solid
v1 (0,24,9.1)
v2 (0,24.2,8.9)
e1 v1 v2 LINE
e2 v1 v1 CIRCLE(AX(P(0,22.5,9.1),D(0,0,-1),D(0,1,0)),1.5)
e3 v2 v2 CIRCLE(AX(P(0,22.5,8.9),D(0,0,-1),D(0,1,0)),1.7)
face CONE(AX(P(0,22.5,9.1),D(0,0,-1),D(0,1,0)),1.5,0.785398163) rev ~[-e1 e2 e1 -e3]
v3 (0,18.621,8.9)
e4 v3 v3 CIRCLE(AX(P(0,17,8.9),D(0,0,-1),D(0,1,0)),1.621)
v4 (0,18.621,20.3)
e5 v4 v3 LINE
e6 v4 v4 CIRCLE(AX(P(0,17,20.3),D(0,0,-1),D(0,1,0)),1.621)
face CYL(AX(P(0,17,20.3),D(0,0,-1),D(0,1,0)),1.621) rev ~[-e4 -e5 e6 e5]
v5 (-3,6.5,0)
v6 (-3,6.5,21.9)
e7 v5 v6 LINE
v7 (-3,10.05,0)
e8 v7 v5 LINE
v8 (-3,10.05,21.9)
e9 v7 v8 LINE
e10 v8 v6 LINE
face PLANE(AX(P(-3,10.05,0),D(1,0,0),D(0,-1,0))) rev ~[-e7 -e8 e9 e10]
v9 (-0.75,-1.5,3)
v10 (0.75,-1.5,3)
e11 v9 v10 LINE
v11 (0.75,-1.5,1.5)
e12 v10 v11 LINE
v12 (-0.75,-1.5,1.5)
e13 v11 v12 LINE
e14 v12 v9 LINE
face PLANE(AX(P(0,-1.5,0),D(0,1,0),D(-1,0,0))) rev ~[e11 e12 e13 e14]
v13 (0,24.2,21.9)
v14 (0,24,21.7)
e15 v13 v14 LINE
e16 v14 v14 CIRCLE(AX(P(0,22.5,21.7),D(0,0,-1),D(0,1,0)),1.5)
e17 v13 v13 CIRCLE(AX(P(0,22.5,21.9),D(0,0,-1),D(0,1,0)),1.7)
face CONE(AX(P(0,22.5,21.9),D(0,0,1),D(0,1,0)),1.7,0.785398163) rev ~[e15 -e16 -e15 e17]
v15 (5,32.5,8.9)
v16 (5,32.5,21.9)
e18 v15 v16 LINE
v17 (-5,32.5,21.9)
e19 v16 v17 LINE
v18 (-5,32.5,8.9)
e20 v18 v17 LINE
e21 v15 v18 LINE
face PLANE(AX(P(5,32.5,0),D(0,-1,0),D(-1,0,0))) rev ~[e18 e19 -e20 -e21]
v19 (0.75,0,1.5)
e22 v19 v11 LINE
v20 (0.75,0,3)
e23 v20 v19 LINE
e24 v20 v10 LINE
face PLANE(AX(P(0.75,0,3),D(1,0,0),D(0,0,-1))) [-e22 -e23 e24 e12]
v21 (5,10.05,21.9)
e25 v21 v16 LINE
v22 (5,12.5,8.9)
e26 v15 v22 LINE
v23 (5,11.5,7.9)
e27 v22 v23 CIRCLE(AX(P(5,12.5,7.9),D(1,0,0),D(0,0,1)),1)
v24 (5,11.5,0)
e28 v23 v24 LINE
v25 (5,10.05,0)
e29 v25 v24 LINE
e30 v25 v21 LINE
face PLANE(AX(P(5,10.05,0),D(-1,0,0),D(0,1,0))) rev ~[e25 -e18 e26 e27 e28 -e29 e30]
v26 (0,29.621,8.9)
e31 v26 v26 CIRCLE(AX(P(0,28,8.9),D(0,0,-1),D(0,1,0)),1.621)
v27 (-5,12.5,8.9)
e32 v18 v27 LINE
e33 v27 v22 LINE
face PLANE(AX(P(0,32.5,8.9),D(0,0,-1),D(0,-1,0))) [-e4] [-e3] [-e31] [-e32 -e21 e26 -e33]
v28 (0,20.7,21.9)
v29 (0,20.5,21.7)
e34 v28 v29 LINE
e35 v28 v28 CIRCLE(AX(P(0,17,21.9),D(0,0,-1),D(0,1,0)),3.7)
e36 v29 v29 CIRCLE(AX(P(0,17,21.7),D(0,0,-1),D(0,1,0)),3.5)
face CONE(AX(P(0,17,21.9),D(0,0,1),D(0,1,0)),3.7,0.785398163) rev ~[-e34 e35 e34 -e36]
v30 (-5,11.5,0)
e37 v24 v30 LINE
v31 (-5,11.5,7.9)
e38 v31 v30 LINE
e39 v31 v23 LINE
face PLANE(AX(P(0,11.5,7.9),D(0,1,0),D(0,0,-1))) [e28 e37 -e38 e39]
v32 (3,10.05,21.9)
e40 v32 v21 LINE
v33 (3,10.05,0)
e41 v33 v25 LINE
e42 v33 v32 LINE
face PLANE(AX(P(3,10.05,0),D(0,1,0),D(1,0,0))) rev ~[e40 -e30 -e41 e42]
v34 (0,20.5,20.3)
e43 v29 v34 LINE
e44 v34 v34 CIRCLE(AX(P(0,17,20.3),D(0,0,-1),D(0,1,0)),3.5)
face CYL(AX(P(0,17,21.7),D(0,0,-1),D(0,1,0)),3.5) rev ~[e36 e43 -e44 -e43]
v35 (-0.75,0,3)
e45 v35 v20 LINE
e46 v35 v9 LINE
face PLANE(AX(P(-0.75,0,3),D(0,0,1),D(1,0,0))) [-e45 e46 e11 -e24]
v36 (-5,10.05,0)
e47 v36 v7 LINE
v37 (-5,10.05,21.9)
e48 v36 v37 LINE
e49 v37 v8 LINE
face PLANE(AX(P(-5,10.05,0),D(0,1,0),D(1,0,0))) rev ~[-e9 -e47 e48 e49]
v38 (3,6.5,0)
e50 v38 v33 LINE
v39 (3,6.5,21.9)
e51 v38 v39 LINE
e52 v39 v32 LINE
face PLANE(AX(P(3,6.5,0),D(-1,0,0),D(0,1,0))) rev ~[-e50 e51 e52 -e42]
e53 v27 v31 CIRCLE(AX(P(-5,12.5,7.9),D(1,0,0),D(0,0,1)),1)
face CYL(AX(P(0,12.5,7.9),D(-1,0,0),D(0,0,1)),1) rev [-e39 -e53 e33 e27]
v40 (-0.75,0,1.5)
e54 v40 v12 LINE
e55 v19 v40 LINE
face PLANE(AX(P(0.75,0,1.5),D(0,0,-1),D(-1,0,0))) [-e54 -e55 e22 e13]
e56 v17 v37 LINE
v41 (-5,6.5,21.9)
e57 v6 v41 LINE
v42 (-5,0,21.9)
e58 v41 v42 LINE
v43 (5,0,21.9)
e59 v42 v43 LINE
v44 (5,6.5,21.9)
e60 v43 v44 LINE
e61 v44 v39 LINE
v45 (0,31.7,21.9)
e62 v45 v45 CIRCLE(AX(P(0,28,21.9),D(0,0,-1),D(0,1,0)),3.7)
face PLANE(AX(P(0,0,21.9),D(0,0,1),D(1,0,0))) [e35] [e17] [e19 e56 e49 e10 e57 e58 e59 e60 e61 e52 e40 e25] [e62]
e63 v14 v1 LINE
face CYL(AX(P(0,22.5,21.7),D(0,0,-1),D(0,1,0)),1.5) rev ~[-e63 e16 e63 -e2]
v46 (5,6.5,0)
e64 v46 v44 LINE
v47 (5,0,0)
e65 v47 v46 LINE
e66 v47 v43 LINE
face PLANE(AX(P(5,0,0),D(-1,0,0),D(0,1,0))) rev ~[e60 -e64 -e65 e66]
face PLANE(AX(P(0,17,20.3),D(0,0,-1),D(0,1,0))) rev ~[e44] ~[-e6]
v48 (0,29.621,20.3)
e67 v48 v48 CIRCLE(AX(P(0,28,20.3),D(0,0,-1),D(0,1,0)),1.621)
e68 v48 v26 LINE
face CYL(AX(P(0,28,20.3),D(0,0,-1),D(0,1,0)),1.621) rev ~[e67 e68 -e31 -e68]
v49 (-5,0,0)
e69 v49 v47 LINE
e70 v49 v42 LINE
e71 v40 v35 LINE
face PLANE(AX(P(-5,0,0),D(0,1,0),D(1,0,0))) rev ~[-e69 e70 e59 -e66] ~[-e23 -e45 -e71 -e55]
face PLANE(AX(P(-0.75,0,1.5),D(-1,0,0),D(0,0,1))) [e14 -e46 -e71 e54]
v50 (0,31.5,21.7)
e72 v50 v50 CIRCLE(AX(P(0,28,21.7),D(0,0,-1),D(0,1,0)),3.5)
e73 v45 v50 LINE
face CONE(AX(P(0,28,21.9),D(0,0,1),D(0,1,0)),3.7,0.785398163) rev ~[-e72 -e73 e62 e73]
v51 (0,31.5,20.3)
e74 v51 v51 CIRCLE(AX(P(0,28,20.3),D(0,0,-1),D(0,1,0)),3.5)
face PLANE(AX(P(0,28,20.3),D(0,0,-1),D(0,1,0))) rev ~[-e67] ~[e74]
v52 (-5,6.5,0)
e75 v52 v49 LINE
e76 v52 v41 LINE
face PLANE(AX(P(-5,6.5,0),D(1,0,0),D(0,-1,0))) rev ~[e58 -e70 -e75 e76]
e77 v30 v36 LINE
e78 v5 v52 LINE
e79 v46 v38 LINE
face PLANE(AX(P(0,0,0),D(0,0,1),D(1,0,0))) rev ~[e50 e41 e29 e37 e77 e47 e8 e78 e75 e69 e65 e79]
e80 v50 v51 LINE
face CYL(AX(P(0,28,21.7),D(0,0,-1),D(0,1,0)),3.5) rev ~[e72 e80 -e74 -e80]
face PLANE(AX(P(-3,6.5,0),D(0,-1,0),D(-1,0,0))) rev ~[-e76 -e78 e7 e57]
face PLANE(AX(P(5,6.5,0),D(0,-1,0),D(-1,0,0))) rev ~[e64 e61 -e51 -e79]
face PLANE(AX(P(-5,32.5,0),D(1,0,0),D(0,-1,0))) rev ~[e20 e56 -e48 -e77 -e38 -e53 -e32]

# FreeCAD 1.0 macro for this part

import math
import FreeCAD as App
import Part
import Sketcher
Q = App.Units.Quantity


def add_polygon(sketch, points):
    """Adds a closed chain of lines whose ends are joined by coincident constraints."""
    first, n = sketch.GeometryCount, len(points)
    for a, b in zip(points, points[1:] + points[:1]):
        sketch.addGeometry(Part.LineSegment(App.Vector(*a, 0), App.Vector(*b, 0)), False)
    for i in range(n):
        sketch.addConstraint(Sketcher.Constraint("Coincident", first + i, 2, first + (i + 1) % n, 1))

doc = App.newDocument("Part")
params = doc.addObject("Spreadsheet::Sheet", "Params")
for row, (alias, value) in enumerate([
    ("sketch1_width", "2 mm"),
    ("sketch1_width2", "10 mm"),
    ("sketch1_height", "6.5 mm"),
    ("sketch1_height2", "22.45 mm"),
    ("pad1_length", "21.9 mm"),
    ("sketch2_radius", "1 mm"),
    ("sketch2_width", "20 mm"),
    ("sketch2_height", "7.9 mm"),
    ("pocket1_length", "10 mm"),
    ("sketch3_height", "13 mm"),
    ("sketch3_width", "1.7 mm"),
    ("sketch3_height2", "12.6 mm"),
    ("groove_angle", "360 deg"),
    ("sketch4_height", "13 mm"),
    ("sketch4_width", "3.7 mm"),
    ("sketch4_height2", "11.4 mm"),
    ("sketch4_height3", "1.4 mm"),
    ("groove2_angle", "360 deg"),
    ("sketch5_height", "13 mm"),
    ("sketch5_width", "3.7 mm"),
    ("sketch5_height2", "11.4 mm"),
    ("sketch5_height3", "1.4 mm"),
    ("groove3_angle", "360 deg"),
    ("sketch6_width", "1.5 mm"),
    ("pad2_length", "1.5 mm"),
], start=1):
    params.set(f"A{row}", alias)
    params.set(f"B{row}", "=" + value)
    params.setAlias(f"B{row}", alias)

body = doc.addObject("PartDesign::Body", "Body")

# Sketch on XY plane
sketch1 = body.newObject("Sketcher::SketchObject", "Sketch")
sketch1.AttachmentSupport = (doc.getObject("XY_Plane"), [""])
sketch1.MapMode = "FlatFace"
add_polygon(sketch1, [(-5, 32.5), (-5, 10.05), (-3, 10.05), (-3, 6.5), (-5, 6.5), (-5, 0), (5, 0), (5, 6.5), (3, 6.5), (3, 10.05), (5, 10.05), (5, 32.5)])  # lines 0-11
sketch1.addConstraint([
    Sketcher.Constraint("Vertical", 0),
    Sketcher.Constraint("Horizontal", 1),
    Sketcher.Constraint("Vertical", 2),
    Sketcher.Constraint("Horizontal", 3),
    Sketcher.Constraint("Vertical", 4),
    Sketcher.Constraint("Horizontal", 5),
    Sketcher.Constraint("Vertical", 6),
    Sketcher.Constraint("Horizontal", 7),
    Sketcher.Constraint("Vertical", 8),
    Sketcher.Constraint("Horizontal", 9),
    Sketcher.Constraint("Vertical", 10),
    Sketcher.Constraint("Horizontal", 11),
    Sketcher.Constraint("Symmetric", 4, 2, 5, 2, -1, 1),
    Sketcher.Constraint("Symmetric", 2, 2, 7, 2, -2),
    Sketcher.Constraint("Symmetric", 0, 2, 9, 2, -2),
    Sketcher.Constraint("Vertical", 0, 2, 3, 2),
    Sketcher.Constraint("DistanceX", 1, 1, 1, 2, 2.0),
    Sketcher.Constraint("DistanceX", 5, 1, 5, 2, 10.0),
    Sketcher.Constraint("DistanceY", 4, 2, 4, 1, 6.5),
    Sketcher.Constraint("DistanceY", 6, 2, 10, 2, 26.0),
    Sketcher.Constraint("DistanceY", 0, 2, 0, 1, 22.45),
])
sketch1.setExpression("Constraints[28]", "Params.sketch1_width")
sketch1.setExpression("Constraints[29]", "Params.sketch1_width2")
sketch1.setExpression("Constraints[30]", "Params.sketch1_height")
sketch1.setExpression("Constraints[32]", "Params.sketch1_height2")
pad1 = body.newObject("PartDesign::Pad", "Pad")
pad1.Profile = sketch1
pad1.setExpression("Length", "Params.pad1_length")

# Sketch on YZ plane
sketch2 = body.newObject("Sketcher::SketchObject", "Sketch001")
sketch2.AttachmentSupport = (doc.getObject("YZ_Plane"), [""])
sketch2.MapMode = "FlatFace"
sketch2.addGeometry([
    Part.LineSegment(App.Vector(32.5, 8.9, 0), App.Vector(12.5, 8.9, 0)),  # 0
    Part.ArcOfCircle(Part.Circle(App.Vector(12.5, 7.9, 0), App.Vector(0, 0, 1), 1), math.radians(90), math.radians(180)),  # 1
    Part.LineSegment(App.Vector(11.5, 7.9, 0), App.Vector(11.5, 0, 0)),  # 2
    Part.LineSegment(App.Vector(11.5, 0, 0), App.Vector(32.5, 0, 0)),  # 3
    Part.LineSegment(App.Vector(32.5, 0, 0), App.Vector(32.5, 8.9, 0)),  # 4
], False)
sketch2.addConstraint([
    Sketcher.Constraint("Tangent", 0, 2, 1, 1),
    Sketcher.Constraint("Tangent", 1, 2, 2, 1),
    Sketcher.Constraint("Coincident", 2, 2, 3, 1),
    Sketcher.Constraint("Coincident", 3, 2, 4, 1),
    Sketcher.Constraint("Coincident", 4, 2, 0, 1),
    Sketcher.Constraint("Horizontal", 0),
    Sketcher.Constraint("Vertical", 2),
    Sketcher.Constraint("Horizontal", 3),
    Sketcher.Constraint("Vertical", 4),
    Sketcher.Constraint("PointOnObject", 2, 2, -1),
    Sketcher.Constraint("Radius", 1, 1.0),
    Sketcher.Constraint("DistanceX", 0, 2, 0, 1, 20.0),
    Sketcher.Constraint("DistanceY", 2, 2, 2, 1, 7.9),
    Sketcher.Constraint("DistanceX", -1, 1, 1, 3, 12.5),
])
sketch2.setExpression("Constraints[10]", "Params.sketch2_radius")
sketch2.setExpression("Constraints[11]", "Params.sketch2_width")
sketch2.setExpression("Constraints[12]", "Params.sketch2_height")
pocket1 = body.newObject("PartDesign::Pocket", "Pocket")
pocket1.Profile = sketch2
pocket1.setExpression("Length", "Params.pocket1_length")
pocket1.Midplane = True

# Sketch on YZ plane
sketch3 = body.newObject("Sketcher::SketchObject", "Sketch002")
sketch3.AttachmentSupport = (doc.getObject("YZ_Plane"), [""])
sketch3.MapMode = "FlatFace"
add_polygon(sketch3, [(22.5, 21.9), (22.5, 8.9), (24.2, 8.9), (24, 9.1), (24, 21.7), (24.2, 21.9)])  # lines 0-5
sketch3.addGeometry(Part.LineSegment(App.Vector(22.5, 21.9, 0), App.Vector(22.5, 8.9, 0)), True)  # axis
sketch3.addConstraint([
    Sketcher.Constraint("Vertical", 0),
    Sketcher.Constraint("Horizontal", 1),
    Sketcher.Constraint("Vertical", 3),
    Sketcher.Constraint("Horizontal", 5),
    Sketcher.Constraint("Vertical", 6),
    Sketcher.Constraint("Coincident", 6, 1, 5, 2),
    Sketcher.Constraint("Perpendicular", 2, 4),
    Sketcher.Constraint("Horizontal", 1, 2, 6, 2),
    Sketcher.Constraint("Vertical", 1, 2, 4, 2),
    Sketcher.Constraint("Equal", 2, 4),
    Sketcher.Constraint("DistanceY", 0, 2, 0, 1, 13.0),
    Sketcher.Constraint("DistanceX", 1, 1, 1, 2, 1.7),
    Sketcher.Constraint("DistanceY", 3, 1, 3, 2, 12.6),
    Sketcher.Constraint("DistanceX", -1, 1, 2, 2, 24.0),
    Sketcher.Constraint("DistanceY", -1, 1, 0, 2, 8.9),
])
sketch3.setExpression("Constraints[16]", "Params.sketch3_height")
sketch3.setExpression("Constraints[17]", "Params.sketch3_width")
sketch3.setExpression("Constraints[18]", "Params.sketch3_height2")
groove = body.newObject("PartDesign::Groove", "Groove")
groove.Profile = sketch3
groove.ReferenceAxis = (sketch3, ["Axis0"])
groove.setExpression("Angle", "Params.groove_angle")

# Sketch on YZ plane
sketch4 = body.newObject("Sketcher::SketchObject", "Sketch003")
sketch4.AttachmentSupport = (doc.getObject("YZ_Plane"), [""])
sketch4.MapMode = "FlatFace"
add_polygon(sketch4, [(17, 21.9), (17, 8.9), (18.621, 8.9), (18.621, 20.3), (20.5, 20.3), (20.5, 21.7), (20.7, 21.9)])  # lines 0-6
sketch4.addGeometry(Part.LineSegment(App.Vector(17, 21.9, 0), App.Vector(17, 8.9, 0)), True)  # axis
sketch4.addConstraint([
    Sketcher.Constraint("Vertical", 0),
    Sketcher.Constraint("Horizontal", 1),
    Sketcher.Constraint("Vertical", 2),
    Sketcher.Constraint("Horizontal", 3),
    Sketcher.Constraint("Vertical", 4),
    Sketcher.Constraint("Horizontal", 6),
    Sketcher.Constraint("Vertical", 7),
    Sketcher.Constraint("Coincident", 7, 1, 6, 2),
    Sketcher.Constraint("Horizontal", 1, 2, 7, 2),
    Sketcher.Constraint("DistanceY", 0, 2, 0, 1, 13.0),
    Sketcher.Constraint("Angle", 5, Q("45 deg")),
    Sketcher.Constraint("DistanceX", 6, 2, 6, 1, 3.7),
    Sketcher.Constraint("DistanceY", 2, 1, 2, 2, 11.4),
    Sketcher.Constraint("DistanceY", 4, 1, 4, 2, 1.4),
    Sketcher.Constraint("DistanceX", -1, 1, 0, 2, 17.0),
    Sketcher.Constraint("DistanceY", -1, 1, 0, 2, 8.9),
    Sketcher.Constraint("DistanceX", 1, 1, 1, 2, 1.621),
])
sketch4.setExpression("Constraints[16]", "Params.sketch4_height")
sketch4.setExpression("Constraints[18]", "Params.sketch4_width")
sketch4.setExpression("Constraints[19]", "Params.sketch4_height2")
sketch4.setExpression("Constraints[20]", "Params.sketch4_height3")
groove2 = body.newObject("PartDesign::Groove", "Groove001")
groove2.Profile = sketch4
groove2.ReferenceAxis = (sketch4, ["Axis0"])
groove2.setExpression("Angle", "Params.groove2_angle")

# Sketch on YZ plane
sketch5 = body.newObject("Sketcher::SketchObject", "Sketch004")
sketch5.AttachmentSupport = (doc.getObject("YZ_Plane"), [""])
sketch5.MapMode = "FlatFace"
add_polygon(sketch5, [(28, 21.9), (28, 8.9), (29.621, 8.9), (29.621, 20.3), (31.5, 20.3), (31.5, 21.7), (31.7, 21.9)])  # lines 0-6
sketch5.addGeometry(Part.LineSegment(App.Vector(28, 21.9, 0), App.Vector(28, 8.9, 0)), True)  # axis
sketch5.addConstraint([
    Sketcher.Constraint("Vertical", 0),
    Sketcher.Constraint("Horizontal", 1),
    Sketcher.Constraint("Vertical", 2),
    Sketcher.Constraint("Horizontal", 3),
    Sketcher.Constraint("Vertical", 4),
    Sketcher.Constraint("Horizontal", 6),
    Sketcher.Constraint("Vertical", 7),
    Sketcher.Constraint("Coincident", 7, 1, 6, 2),
    Sketcher.Constraint("Horizontal", 1, 2, 7, 2),
    Sketcher.Constraint("DistanceY", 0, 2, 0, 1, 13.0),
    Sketcher.Constraint("Angle", 5, Q("45 deg")),
    Sketcher.Constraint("DistanceX", 6, 2, 6, 1, 3.7),
    Sketcher.Constraint("DistanceY", 2, 1, 2, 2, 11.4),
    Sketcher.Constraint("DistanceY", 4, 1, 4, 2, 1.4),
    Sketcher.Constraint("DistanceX", -1, 1, 0, 2, 28.0),
    Sketcher.Constraint("DistanceY", -1, 1, 0, 2, 8.9),
    Sketcher.Constraint("DistanceX", 1, 1, 1, 2, 1.621),
])
sketch5.setExpression("Constraints[16]", "Params.sketch5_height")
sketch5.setExpression("Constraints[18]", "Params.sketch5_width")
sketch5.setExpression("Constraints[19]", "Params.sketch5_height2")
sketch5.setExpression("Constraints[20]", "Params.sketch5_height3")
groove3 = body.newObject("PartDesign::Groove", "Groove002")
groove3.Profile = sketch5
groove3.ReferenceAxis = (sketch5, ["Axis0"])
groove3.setExpression("Angle", "Params.groove3_angle")

# Sketch on XZ plane
sketch6 = body.newObject("Sketcher::SketchObject", "Sketch005")
sketch6.AttachmentSupport = (doc.getObject("XZ_Plane"), [""])
sketch6.MapMode = "FlatFace"
add_polygon(sketch6, [(-0.75, 1.5), (-0.75, 3), (0.75, 3), (0.75, 1.5)])  # lines 0-3
sketch6.addConstraint([
    Sketcher.Constraint("Vertical", 0),
    Sketcher.Constraint("Horizontal", 1),
    Sketcher.Constraint("Vertical", 2),
    Sketcher.Constraint("Horizontal", 3),
    Sketcher.Constraint("Equal", 3, 0),
    Sketcher.Constraint("DistanceX", 1, 1, 1, 2, 1.5),
    Sketcher.Constraint("DistanceY", -1, 1, 0, 2, 3.0),
    Sketcher.Constraint("DistanceX", 0, 2, -1, 1, 0.75),
])
sketch6.setExpression("Constraints[9]", "Params.sketch6_width")
pad2 = body.newObject("PartDesign::Pad", "Pad001")
pad2.Profile = sketch6
pad2.setExpression("Length", "Params.pad2_length")

doc.recompute()
